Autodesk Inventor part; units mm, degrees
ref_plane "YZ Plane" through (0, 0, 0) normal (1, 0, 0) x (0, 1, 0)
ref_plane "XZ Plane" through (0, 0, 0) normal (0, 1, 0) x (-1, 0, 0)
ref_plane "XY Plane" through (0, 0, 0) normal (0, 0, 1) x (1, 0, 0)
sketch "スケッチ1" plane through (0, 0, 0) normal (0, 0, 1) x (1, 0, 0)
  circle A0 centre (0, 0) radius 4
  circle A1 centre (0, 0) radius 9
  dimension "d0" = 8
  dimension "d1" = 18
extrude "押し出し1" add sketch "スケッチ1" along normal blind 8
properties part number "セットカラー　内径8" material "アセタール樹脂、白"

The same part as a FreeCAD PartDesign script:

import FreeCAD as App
import Part
import Sketcher
from FreeCAD import Vector

doc = App.newDocument("Part")
params = doc.addObject("Spreadsheet::Sheet", "Params")
for row, (alias, value) in enumerate([
    ("sketch1_diameter", "18 mm"),
    ("sketch1_diameter2", "8 mm"),
    ("pad1_length", "8 mm"),
], start=1):
    params.set(f"A{row}", alias)
    params.set(f"B{row}", "=" + value)
    params.setAlias(f"B{row}", alias)

body = doc.addObject("PartDesign::Body", "Body")

# Sketch on XY plane
sketch1 = body.newObject("Sketcher::SketchObject", "Sketch")
sketch1.AttachmentSupport = (doc.getObject("XY_Plane"), [""])
sketch1.MapMode = "FlatFace"
sketch1.addGeometry([
    Part.Circle(Vector(0, 0, 0), Vector(0, 0, 1), 9),
    Part.Circle(Vector(0, 0, 0), Vector(0, 0, 1), 4),
], False)
sketch1.addConstraint([
    Sketcher.Constraint("Coincident", 0, 3, -1, 1),
    Sketcher.Constraint("Coincident", 1, 3, -1, 1),
    Sketcher.Constraint("Diameter", 0, 18.0),
    Sketcher.Constraint("Diameter", 1, 8.0),
])
sketch1.setExpression("Constraints[2]", "Params.sketch1_diameter")
sketch1.setExpression("Constraints[3]", "Params.sketch1_diameter2")
pad1 = body.newObject("PartDesign::Pad", "Pad")
pad1.Profile = sketch1
pad1.setExpression("Length", "Params.pad1_length")

doc.recompute()
